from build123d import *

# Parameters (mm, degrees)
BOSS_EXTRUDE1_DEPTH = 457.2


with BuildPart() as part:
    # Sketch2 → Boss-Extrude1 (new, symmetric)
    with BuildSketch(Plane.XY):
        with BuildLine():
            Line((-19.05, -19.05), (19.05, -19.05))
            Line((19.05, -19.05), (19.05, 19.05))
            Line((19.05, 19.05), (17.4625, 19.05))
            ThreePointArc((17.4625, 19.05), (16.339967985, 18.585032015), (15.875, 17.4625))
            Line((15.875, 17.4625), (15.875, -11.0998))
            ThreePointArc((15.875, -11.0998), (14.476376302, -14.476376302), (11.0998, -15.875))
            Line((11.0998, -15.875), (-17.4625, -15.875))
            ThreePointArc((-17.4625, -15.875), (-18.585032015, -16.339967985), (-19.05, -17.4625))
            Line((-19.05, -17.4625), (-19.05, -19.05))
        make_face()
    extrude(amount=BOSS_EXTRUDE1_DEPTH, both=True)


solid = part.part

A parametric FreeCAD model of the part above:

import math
import FreeCAD as App
import Part
import Sketcher
Q = App.Units.Quantity

doc = App.newDocument("Part")
body = doc.addObject("PartDesign::Body", "Body")

sketch1 = doc.addObject("Sketcher::SketchObject", "Sketch")
body.addObject(sketch1)
sketch1.AttachmentSupport = (doc.XY_Plane, [""])
sketch1.MapMode = "FlatFace"
sketch1.addGeometry([
    Part.LineSegment(App.Vector(-19.05, -19.05, 0), App.Vector(19.05, -19.05, 0)),
    Part.LineSegment(App.Vector(19.05, -19.05, 0), App.Vector(19.05, 19.05, 0)),
    Part.LineSegment(App.Vector(19.05, 19.05, 0), App.Vector(17.4625, 19.05, 0)),
    Part.ArcOfCircle(Part.Circle(App.Vector(17.4625, 17.4625, 0), App.Vector(0, 0, 1), 1.5875), math.radians(90), math.radians(180)),
    Part.LineSegment(App.Vector(15.875, 17.4625, 0), App.Vector(15.875, -11.0998, 0)),
    Part.ArcOfCircle(Part.Circle(App.Vector(11.0998, -11.0998, 0), App.Vector(0, 0, 1), 4.7752), math.radians(-90), math.radians(0)),
    Part.LineSegment(App.Vector(11.0998, -15.875, 0), App.Vector(-17.4625, -15.875, 0)),
    Part.ArcOfCircle(Part.Circle(App.Vector(-17.4625, -17.4625, 0), App.Vector(0, 0, 1), 1.5875), math.radians(90), math.radians(180)),
    Part.LineSegment(App.Vector(-19.05, -17.4625, 0), App.Vector(-19.05, -19.05, 0)),
], False)
sketch1.addConstraint([
    Sketcher.Constraint("Coincident", 0, 2, 1, 1),
    Sketcher.Constraint("Coincident", 1, 2, 2, 1),
    Sketcher.Constraint("Tangent", 2, 2, 3, 1),
    Sketcher.Constraint("Tangent", 3, 2, 4, 1),
    Sketcher.Constraint("Tangent", 4, 2, 5, 2),
    Sketcher.Constraint("Tangent", 5, 1, 6, 1),
    Sketcher.Constraint("Tangent", 6, 2, 7, 1),
    Sketcher.Constraint("Tangent", 7, 2, 8, 1),
    Sketcher.Constraint("Coincident", 8, 2, 0, 1),
    Sketcher.Constraint("Horizontal", 0),
    Sketcher.Constraint("Vertical", 1),
    Sketcher.Constraint("Horizontal", 2),
    Sketcher.Constraint("Vertical", 4),
    Sketcher.Constraint("Horizontal", 6),
    Sketcher.Constraint("Vertical", 8),
    Sketcher.Constraint("Equal", 3, 7),
    Sketcher.Constraint("Symmetric", 3, 3, 7, 3, -1, 1),
    Sketcher.Constraint("Symmetric", 1, 2, 8, 2, -1, 1),
    Sketcher.Constraint("Equal", 0, 1),
    Sketcher.Constraint("DistanceX", 0, 1, 0, 2, Q("1.5 in")),
    Sketcher.Constraint("Radius", 3, Q("0.0625 in")),
    Sketcher.Constraint("Radius", 5, Q("0.188 in")),
])
pad1 = doc.addObject("PartDesign::Pad", "Pad")
body.addObject(pad1)
pad1.Profile = sketch1
pad1.Length = Q("36 in")
pad1.Midplane = True

doc.recompute()
